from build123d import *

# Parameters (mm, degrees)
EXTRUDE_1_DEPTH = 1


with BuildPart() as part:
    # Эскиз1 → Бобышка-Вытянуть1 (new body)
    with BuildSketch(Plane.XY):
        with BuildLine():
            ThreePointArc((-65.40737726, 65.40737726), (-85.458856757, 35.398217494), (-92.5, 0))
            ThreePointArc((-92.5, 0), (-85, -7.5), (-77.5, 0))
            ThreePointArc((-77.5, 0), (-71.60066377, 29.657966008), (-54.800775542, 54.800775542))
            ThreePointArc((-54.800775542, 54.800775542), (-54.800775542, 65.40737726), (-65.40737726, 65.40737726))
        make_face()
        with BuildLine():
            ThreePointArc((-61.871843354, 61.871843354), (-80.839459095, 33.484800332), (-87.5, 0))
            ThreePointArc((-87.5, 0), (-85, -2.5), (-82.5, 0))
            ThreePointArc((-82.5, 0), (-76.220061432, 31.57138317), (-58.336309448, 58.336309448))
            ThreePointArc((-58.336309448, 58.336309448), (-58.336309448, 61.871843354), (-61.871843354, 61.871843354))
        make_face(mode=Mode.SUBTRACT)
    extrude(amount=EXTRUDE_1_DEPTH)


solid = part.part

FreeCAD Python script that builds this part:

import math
import FreeCAD as App
import Part
import Sketcher
from FreeCAD import Vector
Q = App.Units.Quantity

doc = App.newDocument("Part")
body = doc.addObject("PartDesign::Body", "Body")

# Sketch on XY plane
sketch1 = body.newObject("Sketcher::SketchObject", "Sketch")
sketch1.AttachmentSupport = (doc.getObject("XY_Plane"), [""])
sketch1.MapMode = "FlatFace"
sketch1.addGeometry([
    Part.ArcOfCircle(Part.Circle(Vector(0, 0, 0), Vector(0, 0, 1), 92.5), math.radians(135), math.radians(180)),  # 0
    Part.ArcOfCircle(Part.Circle(Vector(-85, 0, 0), Vector(0, 0, 1), 7.5), math.radians(180), math.radians(360)),  # 1
    Part.ArcOfCircle(Part.Circle(Vector(0, 0, 0), Vector(0, 0, 1), 77.5), math.radians(135), math.radians(180)),  # 2
    Part.ArcOfCircle(Part.Circle(Vector(-60.1, 60.1, 0), Vector(0, 0, 1), 7.5), math.radians(-45), math.radians(135)),  # 3
    Part.ArcOfCircle(Part.Circle(Vector(0, 0, 0), Vector(0, 0, 1), 87.5), math.radians(135), math.radians(180)),  # 4
    Part.ArcOfCircle(Part.Circle(Vector(-60.1, 60.1, 0), Vector(0, 0, 1), 2.5), math.radians(-45), math.radians(135)),  # 5
    Part.ArcOfCircle(Part.Circle(Vector(0, 0, 0), Vector(0, 0, 1), 82.5), math.radians(135), math.radians(180)),  # 6
    Part.ArcOfCircle(Part.Circle(Vector(-85, 0, 0), Vector(0, 0, 1), 2.5), math.radians(180), math.radians(360)),  # 7
], False)
sketch1.addConstraint([
    Sketcher.Constraint("Tangent", 0, 2, 1, 1),
    Sketcher.Constraint("Tangent", 1, 2, 2, 2),
    Sketcher.Constraint("Tangent", 2, 1, 3, 1),
    Sketcher.Constraint("Tangent", 3, 2, 0, 1),
    Sketcher.Constraint("Tangent", 4, 1, 5, 2),
    Sketcher.Constraint("Tangent", 5, 1, 6, 1),
    Sketcher.Constraint("Tangent", 6, 2, 7, 2),
    Sketcher.Constraint("Tangent", 7, 1, 4, 2),
    Sketcher.Constraint("Coincident", 0, 3, -1, 1),
    Sketcher.Constraint("Coincident", 2, 3, -1, 1),
    Sketcher.Constraint("Coincident", 4, 3, -1, 1),
    Sketcher.Constraint("Coincident", 6, 3, -1, 1),
    Sketcher.Constraint("Coincident", 5, 3, 3, 3),
    Sketcher.Constraint("PointOnObject", 1, 3, -1),
    Sketcher.Constraint("PointOnObject", 7, 3, -1),
    Sketcher.Constraint("Radius", 0, Q("92.5 mm")),
    Sketcher.Constraint("Radius", 1, Q("7.5 mm")),
    Sketcher.Constraint("Radius", 4, Q("87.5 mm")),
    Sketcher.Constraint("DistanceX", 3, 2, 3, 3, Q("5.303301 mm")),
])
pad1 = body.newObject("PartDesign::Pad", "Pad")
pad1.Profile = sketch1
pad1.Length = 1

doc.recompute()
